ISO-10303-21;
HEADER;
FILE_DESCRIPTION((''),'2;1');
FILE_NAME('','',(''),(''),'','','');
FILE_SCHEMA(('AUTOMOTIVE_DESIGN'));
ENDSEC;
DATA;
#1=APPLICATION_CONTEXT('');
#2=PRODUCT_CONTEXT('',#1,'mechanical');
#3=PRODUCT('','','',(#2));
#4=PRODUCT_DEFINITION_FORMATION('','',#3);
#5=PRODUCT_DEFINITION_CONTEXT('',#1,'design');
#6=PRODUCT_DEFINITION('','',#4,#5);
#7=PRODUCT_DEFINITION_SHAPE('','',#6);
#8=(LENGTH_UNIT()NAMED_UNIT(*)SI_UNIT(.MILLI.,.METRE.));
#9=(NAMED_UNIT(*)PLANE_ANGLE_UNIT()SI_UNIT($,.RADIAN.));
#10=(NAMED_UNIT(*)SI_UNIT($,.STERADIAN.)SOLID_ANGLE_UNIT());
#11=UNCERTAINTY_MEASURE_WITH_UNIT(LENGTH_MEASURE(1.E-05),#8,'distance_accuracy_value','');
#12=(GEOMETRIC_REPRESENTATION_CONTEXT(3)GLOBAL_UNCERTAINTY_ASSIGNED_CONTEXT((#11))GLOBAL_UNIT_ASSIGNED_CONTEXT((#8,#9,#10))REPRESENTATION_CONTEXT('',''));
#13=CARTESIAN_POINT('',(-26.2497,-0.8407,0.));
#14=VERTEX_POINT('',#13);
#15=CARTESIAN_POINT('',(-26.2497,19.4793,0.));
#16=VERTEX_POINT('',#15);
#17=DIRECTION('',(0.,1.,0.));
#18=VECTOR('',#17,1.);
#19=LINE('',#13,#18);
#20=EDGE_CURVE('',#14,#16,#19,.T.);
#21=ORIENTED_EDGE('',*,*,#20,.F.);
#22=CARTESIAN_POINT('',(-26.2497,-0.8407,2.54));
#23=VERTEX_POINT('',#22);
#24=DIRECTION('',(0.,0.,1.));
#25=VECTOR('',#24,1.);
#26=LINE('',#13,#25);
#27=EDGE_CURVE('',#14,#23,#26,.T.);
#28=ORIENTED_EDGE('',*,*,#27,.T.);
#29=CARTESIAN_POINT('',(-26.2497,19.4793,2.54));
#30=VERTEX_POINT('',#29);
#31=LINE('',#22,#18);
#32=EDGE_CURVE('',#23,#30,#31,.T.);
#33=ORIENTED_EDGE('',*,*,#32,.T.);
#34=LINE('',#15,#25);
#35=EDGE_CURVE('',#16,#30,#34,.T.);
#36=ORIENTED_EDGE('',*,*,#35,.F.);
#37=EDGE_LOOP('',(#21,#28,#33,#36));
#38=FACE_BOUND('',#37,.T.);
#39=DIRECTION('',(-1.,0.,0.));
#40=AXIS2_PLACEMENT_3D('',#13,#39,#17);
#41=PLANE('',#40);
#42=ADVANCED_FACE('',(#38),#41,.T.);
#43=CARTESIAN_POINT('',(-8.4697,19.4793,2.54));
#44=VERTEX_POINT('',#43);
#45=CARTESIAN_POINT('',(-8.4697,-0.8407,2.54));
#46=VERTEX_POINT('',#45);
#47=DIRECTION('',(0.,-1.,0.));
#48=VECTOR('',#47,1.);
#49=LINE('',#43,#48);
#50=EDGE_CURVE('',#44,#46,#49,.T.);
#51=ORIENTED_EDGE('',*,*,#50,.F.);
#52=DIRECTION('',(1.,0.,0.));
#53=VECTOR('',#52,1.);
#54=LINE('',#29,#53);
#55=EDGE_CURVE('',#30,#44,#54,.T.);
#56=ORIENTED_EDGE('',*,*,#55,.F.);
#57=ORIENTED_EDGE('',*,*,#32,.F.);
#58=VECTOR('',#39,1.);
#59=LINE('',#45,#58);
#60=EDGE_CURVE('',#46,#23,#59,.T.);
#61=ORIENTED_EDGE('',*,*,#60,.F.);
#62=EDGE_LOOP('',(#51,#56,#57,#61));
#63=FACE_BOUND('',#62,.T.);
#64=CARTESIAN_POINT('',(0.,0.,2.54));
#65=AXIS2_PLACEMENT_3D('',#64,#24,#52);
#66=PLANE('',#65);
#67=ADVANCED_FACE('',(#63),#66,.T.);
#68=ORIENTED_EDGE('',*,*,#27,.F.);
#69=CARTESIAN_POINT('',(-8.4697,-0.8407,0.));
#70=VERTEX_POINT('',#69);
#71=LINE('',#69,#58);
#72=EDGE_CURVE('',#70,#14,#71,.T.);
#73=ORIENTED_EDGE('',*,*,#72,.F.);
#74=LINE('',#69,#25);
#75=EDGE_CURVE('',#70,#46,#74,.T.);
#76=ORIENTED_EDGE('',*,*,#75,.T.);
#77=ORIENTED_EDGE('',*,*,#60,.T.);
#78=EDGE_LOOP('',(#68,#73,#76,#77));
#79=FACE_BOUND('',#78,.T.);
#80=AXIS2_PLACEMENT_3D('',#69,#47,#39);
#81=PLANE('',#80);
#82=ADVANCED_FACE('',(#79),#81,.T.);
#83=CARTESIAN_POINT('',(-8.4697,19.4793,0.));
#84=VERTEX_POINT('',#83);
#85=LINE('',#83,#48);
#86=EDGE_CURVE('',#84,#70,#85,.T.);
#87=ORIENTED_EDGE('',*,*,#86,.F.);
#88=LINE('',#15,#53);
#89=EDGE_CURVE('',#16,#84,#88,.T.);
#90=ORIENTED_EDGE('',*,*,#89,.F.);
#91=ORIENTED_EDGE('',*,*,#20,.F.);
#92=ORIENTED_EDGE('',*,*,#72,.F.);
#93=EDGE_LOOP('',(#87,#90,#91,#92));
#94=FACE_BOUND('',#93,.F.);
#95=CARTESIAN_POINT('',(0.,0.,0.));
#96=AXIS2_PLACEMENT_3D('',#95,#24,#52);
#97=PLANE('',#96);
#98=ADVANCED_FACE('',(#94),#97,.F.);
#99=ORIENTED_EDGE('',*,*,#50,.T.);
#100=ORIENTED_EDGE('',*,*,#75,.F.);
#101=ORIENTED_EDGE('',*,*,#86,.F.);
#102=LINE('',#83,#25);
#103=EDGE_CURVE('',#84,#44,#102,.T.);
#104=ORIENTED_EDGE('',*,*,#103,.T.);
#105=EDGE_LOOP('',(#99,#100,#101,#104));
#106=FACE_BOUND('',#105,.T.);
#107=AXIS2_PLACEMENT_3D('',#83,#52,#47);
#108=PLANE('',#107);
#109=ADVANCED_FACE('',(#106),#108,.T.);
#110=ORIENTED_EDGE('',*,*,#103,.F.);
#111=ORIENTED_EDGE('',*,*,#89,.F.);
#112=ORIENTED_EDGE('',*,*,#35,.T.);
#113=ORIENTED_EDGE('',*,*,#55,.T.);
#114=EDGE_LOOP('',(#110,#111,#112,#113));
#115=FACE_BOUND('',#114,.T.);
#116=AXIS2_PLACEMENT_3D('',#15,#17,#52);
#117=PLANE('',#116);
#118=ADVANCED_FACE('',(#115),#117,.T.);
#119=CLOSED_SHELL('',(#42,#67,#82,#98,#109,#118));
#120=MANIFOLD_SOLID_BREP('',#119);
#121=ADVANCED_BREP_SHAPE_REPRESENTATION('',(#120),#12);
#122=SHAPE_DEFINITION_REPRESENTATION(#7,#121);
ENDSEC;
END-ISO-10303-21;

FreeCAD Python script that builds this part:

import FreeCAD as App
import Part
import Sketcher
Q = App.Units.Quantity

doc = App.newDocument("Part")
body = doc.addObject("PartDesign::Body", "Body")

# Sketch on XY plane
sketch1 = body.newObject("Sketcher::SketchObject", "Sketch")
sketch1.AttachmentSupport = (doc.getObject("XY_Plane"), [""])
sketch1.MapMode = "FlatFace"
sketch1.addGeometry(Part.LineSegment(App.Vector(-8, 19, 0), App.Vector(-26, 19, 0)), False)
sketch1.addGeometry(Part.LineSegment(App.Vector(-26, 19, 0), App.Vector(-26, -1, 0)), False)
sketch1.addGeometry(Part.LineSegment(App.Vector(-26, -1, 0), App.Vector(-8, -1, 0)), False)
sketch1.addGeometry(Part.LineSegment(App.Vector(-8, -1, 0), App.Vector(-8, 19, 0)), False)
sketch1.addConstraint(Sketcher.Constraint("Coincident", 0, 2, 1, 1))
sketch1.addConstraint(Sketcher.Constraint("Coincident", 1, 2, 2, 1))
sketch1.addConstraint(Sketcher.Constraint("Coincident", 2, 2, 3, 1))
sketch1.addConstraint(Sketcher.Constraint("Coincident", 3, 2, 0, 1))
sketch1.addConstraint(Sketcher.Constraint("Horizontal", 0))
sketch1.addConstraint(Sketcher.Constraint("Vertical", 1))
sketch1.addConstraint(Sketcher.Constraint("Horizontal", 2))
sketch1.addConstraint(Sketcher.Constraint("Vertical", 3))
sketch1.addConstraint(Sketcher.Constraint("DistanceX", 0, 2, 0, 1, Q("0.7 in")))
sketch1.addConstraint(Sketcher.Constraint("DistanceY", 1, 2, 1, 1, Q("0.8 in")))
sketch1.addConstraint(Sketcher.Constraint("DistanceY", -1, 1, 0, 2, Q("0.7669 in")))
sketch1.addConstraint(Sketcher.Constraint("DistanceX", 0, 2, -1, 1, Q("26.2497 mm")))
pad1 = body.newObject("PartDesign::Pad", "Pad")
pad1.Profile = sketch1
pad1.Length = Q("0.1 in")

doc.recompute()
